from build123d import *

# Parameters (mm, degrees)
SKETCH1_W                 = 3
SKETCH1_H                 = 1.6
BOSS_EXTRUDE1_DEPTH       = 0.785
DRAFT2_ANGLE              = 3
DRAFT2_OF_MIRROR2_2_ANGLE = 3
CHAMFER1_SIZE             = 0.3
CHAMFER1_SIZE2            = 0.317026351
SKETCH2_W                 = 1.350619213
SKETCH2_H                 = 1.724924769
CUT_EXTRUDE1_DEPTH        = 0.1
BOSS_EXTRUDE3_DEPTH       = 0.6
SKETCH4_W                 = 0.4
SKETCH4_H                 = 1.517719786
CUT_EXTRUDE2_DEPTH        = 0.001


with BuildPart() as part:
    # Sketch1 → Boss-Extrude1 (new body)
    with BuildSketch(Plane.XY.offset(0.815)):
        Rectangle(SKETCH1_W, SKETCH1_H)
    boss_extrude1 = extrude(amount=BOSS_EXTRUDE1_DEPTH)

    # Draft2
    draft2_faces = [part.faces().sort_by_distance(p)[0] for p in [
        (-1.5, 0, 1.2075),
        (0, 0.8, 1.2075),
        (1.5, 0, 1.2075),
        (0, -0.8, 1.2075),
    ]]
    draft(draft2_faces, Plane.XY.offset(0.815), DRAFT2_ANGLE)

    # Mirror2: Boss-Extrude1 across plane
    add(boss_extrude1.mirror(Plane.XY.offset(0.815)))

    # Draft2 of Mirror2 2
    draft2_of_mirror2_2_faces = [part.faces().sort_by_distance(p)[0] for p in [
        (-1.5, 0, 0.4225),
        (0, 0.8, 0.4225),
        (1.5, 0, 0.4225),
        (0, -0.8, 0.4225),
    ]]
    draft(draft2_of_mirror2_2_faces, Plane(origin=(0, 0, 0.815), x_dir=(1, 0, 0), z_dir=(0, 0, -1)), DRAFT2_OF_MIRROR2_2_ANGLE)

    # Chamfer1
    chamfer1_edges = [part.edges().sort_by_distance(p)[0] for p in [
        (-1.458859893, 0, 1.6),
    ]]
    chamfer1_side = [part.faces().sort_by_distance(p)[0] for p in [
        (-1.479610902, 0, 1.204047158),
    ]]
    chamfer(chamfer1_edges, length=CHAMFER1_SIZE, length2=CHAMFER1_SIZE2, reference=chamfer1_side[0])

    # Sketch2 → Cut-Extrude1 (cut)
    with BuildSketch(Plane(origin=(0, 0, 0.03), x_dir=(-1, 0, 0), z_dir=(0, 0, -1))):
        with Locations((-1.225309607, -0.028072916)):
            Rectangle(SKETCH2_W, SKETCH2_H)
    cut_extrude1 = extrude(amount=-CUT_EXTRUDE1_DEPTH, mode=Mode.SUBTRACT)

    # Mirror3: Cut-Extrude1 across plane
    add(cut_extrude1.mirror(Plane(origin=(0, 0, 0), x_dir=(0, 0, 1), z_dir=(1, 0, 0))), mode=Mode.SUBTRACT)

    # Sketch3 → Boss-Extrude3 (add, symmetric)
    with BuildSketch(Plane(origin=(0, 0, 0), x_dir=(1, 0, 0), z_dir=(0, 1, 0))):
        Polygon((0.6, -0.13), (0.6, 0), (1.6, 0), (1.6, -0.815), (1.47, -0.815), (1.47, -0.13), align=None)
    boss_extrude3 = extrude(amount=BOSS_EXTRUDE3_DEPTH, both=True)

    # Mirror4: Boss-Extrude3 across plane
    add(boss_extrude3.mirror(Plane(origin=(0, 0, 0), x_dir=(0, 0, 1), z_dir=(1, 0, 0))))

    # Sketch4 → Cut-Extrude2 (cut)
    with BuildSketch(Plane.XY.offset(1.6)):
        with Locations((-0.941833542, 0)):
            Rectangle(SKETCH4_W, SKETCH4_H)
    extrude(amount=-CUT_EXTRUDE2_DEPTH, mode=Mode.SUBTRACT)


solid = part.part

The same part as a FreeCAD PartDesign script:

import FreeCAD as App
import Part
import Sketcher

V = App.Vector


def edges_at(feature, points):
    """Names of the edges that pass closest to the given points."""
    edges = feature.Shape.Edges
    near = lambda p: min(range(len(edges)), key=lambda i: edges[i].distToShape(Part.Vertex(*p))[0])
    return sorted({f"Edge{near(p) + 1}" for p in points})


def faces_at(feature, points):
    """Names of the faces that lie closest to the given points."""
    faces = feature.Shape.Faces
    near = lambda p: min(range(len(faces)), key=lambda i: faces[i].distToShape(Part.Vertex(*p))[0])
    return sorted({f"Face{near(p) + 1}" for p in points})

doc = App.newDocument("Part")
params = doc.addObject("Spreadsheet::Sheet", "Params")
for row, (alias, value) in enumerate([
    ("sketch1_width", "3 mm"),
    ("sketch1_height", "1.6 mm"),
    ("pad1_length", "0.785 mm"),
    ("draft_angle", "3 deg"),
    ("draft2_angle", "3 deg"),
    ("chamfer_size", "0.3 mm"),
    ("chamfer_size2", "0.317026 mm"),
    ("pocket1_length", "0.1 mm"),
    ("sketch3_width", "1 mm"),
    ("sketch3_width2", "0.87 mm"),
    ("pad2_length", "1.2 mm"),
    ("sketch4_width", "0.4 mm"),
    ("pocket2_length", "0.001 mm"),
], start=1):
    params.set(f"A{row}", alias)
    params.set(f"B{row}", "=" + value)
    params.setAlias(f"B{row}", alias)

body = doc.addObject("PartDesign::Body", "Body")

sketch1 = body.newObject("Sketcher::SketchObject", "Sketch")
sketch1.AttachmentSupport = (doc.getObject("XY_Plane"), [""])
sketch1.MapMode = "FlatFace"
sketch1.AttachmentOffset = App.Placement(V(0, 0, 0.815), App.Rotation())
sketch1.addGeometry([
    Part.LineSegment(V(-1.5, 0.8, 0), V(-1.5, -0.8, 0)),
    Part.LineSegment(V(-1.5, -0.8, 0), V(1.5, -0.8, 0)),
    Part.LineSegment(V(1.5, -0.8, 0), V(1.5, 0.8, 0)),
    Part.LineSegment(V(1.5, 0.8, 0), V(-1.5, 0.8, 0)),
], False)
sketch1.addConstraint([
    Sketcher.Constraint("Coincident", 0, 2, 1, 1),
    Sketcher.Constraint("Coincident", 1, 2, 2, 1),
    Sketcher.Constraint("Coincident", 2, 2, 3, 1),
    Sketcher.Constraint("Coincident", 3, 2, 0, 1),
    Sketcher.Constraint("Vertical", 0),
    Sketcher.Constraint("Horizontal", 1),
    Sketcher.Constraint("Vertical", 2),
    Sketcher.Constraint("Horizontal", 3),
    Sketcher.Constraint("Symmetric", 0, 2, 2, 2, -1, 1),
    Sketcher.Constraint("DistanceX", 1, 1, 1, 2, 3.0),
    Sketcher.Constraint("DistanceY", 0, 2, 0, 1, 1.6),
])
sketch1.setExpression("Constraints[9]", "Params.sketch1_width")
sketch1.setExpression("Constraints[10]", "Params.sketch1_height")
pad1 = body.newObject("PartDesign::Pad", "Pad")
pad1.Profile = sketch1
pad1.setExpression("Length", "Params.pad1_length")
doc.recompute()

datumplane = body.newObject("PartDesign::Plane", "DatumPlane")
datumplane.AttachmentSupport = (doc.getObject("XY_Plane"), [""])
datumplane.MapMode = "FlatFace"
datumplane.AttachmentOffset = App.Placement(V(0, 0, 0.815), App.Rotation())
draft = body.newObject("PartDesign::Draft", "Draft")
draft.Base = (pad1, faces_at(pad1, [
    (-1.5, 0, 1.208),
    (0, 0.8, 1.208),
    (1.5, 0, 1.208),
    (0, -0.8, 1.208),
]))
draft.NeutralPlane = (datumplane, [""])
draft.setExpression("Angle", "Params.draft_angle")
draft.Reversed = False
doc.recompute()

datumplane2 = body.newObject("PartDesign::Plane", "DatumPlane001")
datumplane2.AttachmentSupport = (doc.getObject("XY_Plane"), [""])
datumplane2.MapMode = "FlatFace"
datumplane2.AttachmentOffset = App.Placement(V(0, 0, 0.815), App.Rotation())
mirrored = body.newObject("PartDesign::Mirrored", "Mirrored")
mirrored.Originals = [pad1]
mirrored.MirrorPlane = (datumplane2, [""])
body.Tip = mirrored
doc.recompute()

datumplane3 = body.newObject("PartDesign::Plane", "DatumPlane002")
datumplane3.AttachmentSupport = (doc.getObject("XY_Plane"), [""])
datumplane3.MapMode = "FlatFace"
datumplane3.AttachmentOffset = App.Placement(V(0, 0, 0.815), App.Rotation())
draft2 = body.newObject("PartDesign::Draft", "Draft001")
draft2.Base = (mirrored, faces_at(mirrored, [
    (-1.5, 0, 0.422),
    (0, 0.8, 0.422),
    (1.5, 0, 0.422),
    (0, -0.8, 0.422),
]))
draft2.NeutralPlane = (datumplane3, [""])
draft2.setExpression("Angle", "Params.draft2_angle")
draft2.Reversed = True
doc.recompute()

chamfer = body.newObject("PartDesign::Chamfer", "Chamfer")
chamfer.Base = (draft2, edges_at(draft2, [(-1.459, 0, 1.6)]))
chamfer.ChamferType = "Two distances"
chamfer.setExpression("Size", "Params.chamfer_size")
chamfer.setExpression("Size2", "Params.chamfer_size2")

sketch2 = body.newObject("Sketcher::SketchObject", "Sketch001")
sketch2.AttachmentSupport = (doc.getObject("XY_Plane"), [""])
sketch2.MapMode = "FlatFace"
sketch2.AttachmentOffset = App.Placement(V(0, 0, 0.03), App.Rotation())
sketch2.addGeometry([
    Part.LineSegment(V(1.9, 0.8, 0), V(1.9, -0.9, 0)),
    Part.LineSegment(V(1.9, -0.9, 0), V(0.6, -0.9, 0)),
    Part.LineSegment(V(0.6, -0.9, 0), V(0.6, 0.8, 0)),
    Part.LineSegment(V(0.6, 0.8, 0), V(1.9, 0.8, 0)),
], False)
sketch2.addConstraint([
    Sketcher.Constraint("Coincident", 0, 2, 1, 1),
    Sketcher.Constraint("Coincident", 1, 2, 2, 1),
    Sketcher.Constraint("Coincident", 2, 2, 3, 1),
    Sketcher.Constraint("Coincident", 3, 2, 0, 1),
    Sketcher.Constraint("Vertical", 0),
    Sketcher.Constraint("Horizontal", 1),
    Sketcher.Constraint("Vertical", 2),
    Sketcher.Constraint("Horizontal", 3),
    Sketcher.Constraint("DistanceX", -1, 1, 1, 2, 0.55),
    Sketcher.Constraint("DistanceX", 1, 2, 1, 1, 1.350619),
    Sketcher.Constraint("DistanceY", 0, 2, 0, 1, 1.724925),
    Sketcher.Constraint("DistanceY", -1, 1, 2, 2, 0.834389),
])
pocket1 = body.newObject("PartDesign::Pocket", "Pocket")
pocket1.Profile = sketch2
pocket1.setExpression("Length", "Params.pocket1_length")
pocket1.Reversed = True
doc.recompute()

mirrored2 = body.newObject("PartDesign::Mirrored", "Mirrored001")
mirrored2.Originals = [pocket1]
mirrored2.MirrorPlane = (doc.getObject("YZ_Plane"), [""])
body.Tip = mirrored2

sketch3 = body.newObject("Sketcher::SketchObject", "Sketch002")
sketch3.AttachmentSupport = (doc.getObject("XZ_Plane"), [""])
sketch3.MapMode = "FlatFace"
sketch3.addGeometry([
    Part.LineSegment(V(0.6, 0, 0), V(0.6, 0.13, 0)),
    Part.LineSegment(V(0.6, 0.13, 0), V(1.47, 0.13, 0)),
    Part.LineSegment(V(1.47, 0.13, 0), V(1.47, 0.81, 0)),
    Part.LineSegment(V(1.47, 0.81, 0), V(1.6, 0.81, 0)),
    Part.LineSegment(V(1.6, 0.81, 0), V(1.6, 0, 0)),
    Part.LineSegment(V(1.6, 0, 0), V(0.6, 0, 0)),
], False)
sketch3.addConstraint([
    Sketcher.Constraint("Coincident", 0, 2, 1, 1),
    Sketcher.Constraint("Coincident", 1, 2, 2, 1),
    Sketcher.Constraint("Coincident", 2, 2, 3, 1),
    Sketcher.Constraint("Coincident", 3, 2, 4, 1),
    Sketcher.Constraint("Coincident", 4, 2, 5, 1),
    Sketcher.Constraint("Coincident", 5, 2, 0, 1),
    Sketcher.Constraint("Vertical", 0),
    Sketcher.Constraint("Horizontal", 1),
    Sketcher.Constraint("Vertical", 2),
    Sketcher.Constraint("Horizontal", 3),
    Sketcher.Constraint("Vertical", 4),
    Sketcher.Constraint("Horizontal", 5),
    Sketcher.Constraint("PointOnObject", 4, 2, -1),
    Sketcher.Constraint("Equal", 3, 0),
    Sketcher.Constraint("DistanceX", 5, 2, 5, 1, 1.0),
    Sketcher.Constraint("DistanceX", 1, 1, 1, 2, 0.87),
    Sketcher.Constraint("DistanceX", -1, 1, 0, 2, 0.6),
    Sketcher.Constraint("DistanceY", 2, 1, 2, 2, 0.685),
])
sketch3.setExpression("Constraints[14]", "Params.sketch3_width")
sketch3.setExpression("Constraints[15]", "Params.sketch3_width2")
pad2 = body.newObject("PartDesign::Pad", "Pad001")
pad2.Profile = sketch3
pad2.setExpression("Length", "Params.pad2_length")
pad2.Midplane = True
doc.recompute()

mirrored3 = body.newObject("PartDesign::Mirrored", "Mirrored002")
mirrored3.Originals = [pad2]
mirrored3.MirrorPlane = (doc.getObject("YZ_Plane"), [""])
body.Tip = mirrored3

sketch4 = body.newObject("Sketcher::SketchObject", "Sketch003")
sketch4.AttachmentSupport = (doc.getObject("XY_Plane"), [""])
sketch4.MapMode = "FlatFace"
sketch4.AttachmentOffset = App.Placement(V(0, 0, 1.6), App.Rotation())
sketch4.addGeometry([
    Part.LineSegment(V(-1.14, 0.76, 0), V(-1.14, -0.76, 0)),
    Part.LineSegment(V(-1.14, -0.76, 0), V(-0.74, -0.76, 0)),
    Part.LineSegment(V(-0.74, -0.76, 0), V(-0.74, 0.76, 0)),
    Part.LineSegment(V(-0.74, 0.76, 0), V(-1.14, 0.76, 0)),
], False)
sketch4.addConstraint([
    Sketcher.Constraint("Coincident", 0, 2, 1, 1),
    Sketcher.Constraint("Coincident", 1, 2, 2, 1),
    Sketcher.Constraint("Coincident", 2, 2, 3, 1),
    Sketcher.Constraint("Coincident", 3, 2, 0, 1),
    Sketcher.Constraint("Vertical", 0),
    Sketcher.Constraint("Horizontal", 1),
    Sketcher.Constraint("Vertical", 2),
    Sketcher.Constraint("Horizontal", 3),
    Sketcher.Constraint("DistanceX", 1, 1, 1, 2, 0.4),
    Sketcher.Constraint("DistanceY", 0, 2, 0, 1, 1.51772),
    Sketcher.Constraint("DistanceY", 0, 2, -1, 1, 0.75886),
    Sketcher.Constraint("DistanceX", 0, 2, -1, 1, 1.141834),
])
sketch4.setExpression("Constraints[8]", "Params.sketch4_width")
pocket2 = body.newObject("PartDesign::Pocket", "Pocket001")
pocket2.Profile = sketch4
pocket2.setExpression("Length", "Params.pocket2_length")

doc.recompute()
